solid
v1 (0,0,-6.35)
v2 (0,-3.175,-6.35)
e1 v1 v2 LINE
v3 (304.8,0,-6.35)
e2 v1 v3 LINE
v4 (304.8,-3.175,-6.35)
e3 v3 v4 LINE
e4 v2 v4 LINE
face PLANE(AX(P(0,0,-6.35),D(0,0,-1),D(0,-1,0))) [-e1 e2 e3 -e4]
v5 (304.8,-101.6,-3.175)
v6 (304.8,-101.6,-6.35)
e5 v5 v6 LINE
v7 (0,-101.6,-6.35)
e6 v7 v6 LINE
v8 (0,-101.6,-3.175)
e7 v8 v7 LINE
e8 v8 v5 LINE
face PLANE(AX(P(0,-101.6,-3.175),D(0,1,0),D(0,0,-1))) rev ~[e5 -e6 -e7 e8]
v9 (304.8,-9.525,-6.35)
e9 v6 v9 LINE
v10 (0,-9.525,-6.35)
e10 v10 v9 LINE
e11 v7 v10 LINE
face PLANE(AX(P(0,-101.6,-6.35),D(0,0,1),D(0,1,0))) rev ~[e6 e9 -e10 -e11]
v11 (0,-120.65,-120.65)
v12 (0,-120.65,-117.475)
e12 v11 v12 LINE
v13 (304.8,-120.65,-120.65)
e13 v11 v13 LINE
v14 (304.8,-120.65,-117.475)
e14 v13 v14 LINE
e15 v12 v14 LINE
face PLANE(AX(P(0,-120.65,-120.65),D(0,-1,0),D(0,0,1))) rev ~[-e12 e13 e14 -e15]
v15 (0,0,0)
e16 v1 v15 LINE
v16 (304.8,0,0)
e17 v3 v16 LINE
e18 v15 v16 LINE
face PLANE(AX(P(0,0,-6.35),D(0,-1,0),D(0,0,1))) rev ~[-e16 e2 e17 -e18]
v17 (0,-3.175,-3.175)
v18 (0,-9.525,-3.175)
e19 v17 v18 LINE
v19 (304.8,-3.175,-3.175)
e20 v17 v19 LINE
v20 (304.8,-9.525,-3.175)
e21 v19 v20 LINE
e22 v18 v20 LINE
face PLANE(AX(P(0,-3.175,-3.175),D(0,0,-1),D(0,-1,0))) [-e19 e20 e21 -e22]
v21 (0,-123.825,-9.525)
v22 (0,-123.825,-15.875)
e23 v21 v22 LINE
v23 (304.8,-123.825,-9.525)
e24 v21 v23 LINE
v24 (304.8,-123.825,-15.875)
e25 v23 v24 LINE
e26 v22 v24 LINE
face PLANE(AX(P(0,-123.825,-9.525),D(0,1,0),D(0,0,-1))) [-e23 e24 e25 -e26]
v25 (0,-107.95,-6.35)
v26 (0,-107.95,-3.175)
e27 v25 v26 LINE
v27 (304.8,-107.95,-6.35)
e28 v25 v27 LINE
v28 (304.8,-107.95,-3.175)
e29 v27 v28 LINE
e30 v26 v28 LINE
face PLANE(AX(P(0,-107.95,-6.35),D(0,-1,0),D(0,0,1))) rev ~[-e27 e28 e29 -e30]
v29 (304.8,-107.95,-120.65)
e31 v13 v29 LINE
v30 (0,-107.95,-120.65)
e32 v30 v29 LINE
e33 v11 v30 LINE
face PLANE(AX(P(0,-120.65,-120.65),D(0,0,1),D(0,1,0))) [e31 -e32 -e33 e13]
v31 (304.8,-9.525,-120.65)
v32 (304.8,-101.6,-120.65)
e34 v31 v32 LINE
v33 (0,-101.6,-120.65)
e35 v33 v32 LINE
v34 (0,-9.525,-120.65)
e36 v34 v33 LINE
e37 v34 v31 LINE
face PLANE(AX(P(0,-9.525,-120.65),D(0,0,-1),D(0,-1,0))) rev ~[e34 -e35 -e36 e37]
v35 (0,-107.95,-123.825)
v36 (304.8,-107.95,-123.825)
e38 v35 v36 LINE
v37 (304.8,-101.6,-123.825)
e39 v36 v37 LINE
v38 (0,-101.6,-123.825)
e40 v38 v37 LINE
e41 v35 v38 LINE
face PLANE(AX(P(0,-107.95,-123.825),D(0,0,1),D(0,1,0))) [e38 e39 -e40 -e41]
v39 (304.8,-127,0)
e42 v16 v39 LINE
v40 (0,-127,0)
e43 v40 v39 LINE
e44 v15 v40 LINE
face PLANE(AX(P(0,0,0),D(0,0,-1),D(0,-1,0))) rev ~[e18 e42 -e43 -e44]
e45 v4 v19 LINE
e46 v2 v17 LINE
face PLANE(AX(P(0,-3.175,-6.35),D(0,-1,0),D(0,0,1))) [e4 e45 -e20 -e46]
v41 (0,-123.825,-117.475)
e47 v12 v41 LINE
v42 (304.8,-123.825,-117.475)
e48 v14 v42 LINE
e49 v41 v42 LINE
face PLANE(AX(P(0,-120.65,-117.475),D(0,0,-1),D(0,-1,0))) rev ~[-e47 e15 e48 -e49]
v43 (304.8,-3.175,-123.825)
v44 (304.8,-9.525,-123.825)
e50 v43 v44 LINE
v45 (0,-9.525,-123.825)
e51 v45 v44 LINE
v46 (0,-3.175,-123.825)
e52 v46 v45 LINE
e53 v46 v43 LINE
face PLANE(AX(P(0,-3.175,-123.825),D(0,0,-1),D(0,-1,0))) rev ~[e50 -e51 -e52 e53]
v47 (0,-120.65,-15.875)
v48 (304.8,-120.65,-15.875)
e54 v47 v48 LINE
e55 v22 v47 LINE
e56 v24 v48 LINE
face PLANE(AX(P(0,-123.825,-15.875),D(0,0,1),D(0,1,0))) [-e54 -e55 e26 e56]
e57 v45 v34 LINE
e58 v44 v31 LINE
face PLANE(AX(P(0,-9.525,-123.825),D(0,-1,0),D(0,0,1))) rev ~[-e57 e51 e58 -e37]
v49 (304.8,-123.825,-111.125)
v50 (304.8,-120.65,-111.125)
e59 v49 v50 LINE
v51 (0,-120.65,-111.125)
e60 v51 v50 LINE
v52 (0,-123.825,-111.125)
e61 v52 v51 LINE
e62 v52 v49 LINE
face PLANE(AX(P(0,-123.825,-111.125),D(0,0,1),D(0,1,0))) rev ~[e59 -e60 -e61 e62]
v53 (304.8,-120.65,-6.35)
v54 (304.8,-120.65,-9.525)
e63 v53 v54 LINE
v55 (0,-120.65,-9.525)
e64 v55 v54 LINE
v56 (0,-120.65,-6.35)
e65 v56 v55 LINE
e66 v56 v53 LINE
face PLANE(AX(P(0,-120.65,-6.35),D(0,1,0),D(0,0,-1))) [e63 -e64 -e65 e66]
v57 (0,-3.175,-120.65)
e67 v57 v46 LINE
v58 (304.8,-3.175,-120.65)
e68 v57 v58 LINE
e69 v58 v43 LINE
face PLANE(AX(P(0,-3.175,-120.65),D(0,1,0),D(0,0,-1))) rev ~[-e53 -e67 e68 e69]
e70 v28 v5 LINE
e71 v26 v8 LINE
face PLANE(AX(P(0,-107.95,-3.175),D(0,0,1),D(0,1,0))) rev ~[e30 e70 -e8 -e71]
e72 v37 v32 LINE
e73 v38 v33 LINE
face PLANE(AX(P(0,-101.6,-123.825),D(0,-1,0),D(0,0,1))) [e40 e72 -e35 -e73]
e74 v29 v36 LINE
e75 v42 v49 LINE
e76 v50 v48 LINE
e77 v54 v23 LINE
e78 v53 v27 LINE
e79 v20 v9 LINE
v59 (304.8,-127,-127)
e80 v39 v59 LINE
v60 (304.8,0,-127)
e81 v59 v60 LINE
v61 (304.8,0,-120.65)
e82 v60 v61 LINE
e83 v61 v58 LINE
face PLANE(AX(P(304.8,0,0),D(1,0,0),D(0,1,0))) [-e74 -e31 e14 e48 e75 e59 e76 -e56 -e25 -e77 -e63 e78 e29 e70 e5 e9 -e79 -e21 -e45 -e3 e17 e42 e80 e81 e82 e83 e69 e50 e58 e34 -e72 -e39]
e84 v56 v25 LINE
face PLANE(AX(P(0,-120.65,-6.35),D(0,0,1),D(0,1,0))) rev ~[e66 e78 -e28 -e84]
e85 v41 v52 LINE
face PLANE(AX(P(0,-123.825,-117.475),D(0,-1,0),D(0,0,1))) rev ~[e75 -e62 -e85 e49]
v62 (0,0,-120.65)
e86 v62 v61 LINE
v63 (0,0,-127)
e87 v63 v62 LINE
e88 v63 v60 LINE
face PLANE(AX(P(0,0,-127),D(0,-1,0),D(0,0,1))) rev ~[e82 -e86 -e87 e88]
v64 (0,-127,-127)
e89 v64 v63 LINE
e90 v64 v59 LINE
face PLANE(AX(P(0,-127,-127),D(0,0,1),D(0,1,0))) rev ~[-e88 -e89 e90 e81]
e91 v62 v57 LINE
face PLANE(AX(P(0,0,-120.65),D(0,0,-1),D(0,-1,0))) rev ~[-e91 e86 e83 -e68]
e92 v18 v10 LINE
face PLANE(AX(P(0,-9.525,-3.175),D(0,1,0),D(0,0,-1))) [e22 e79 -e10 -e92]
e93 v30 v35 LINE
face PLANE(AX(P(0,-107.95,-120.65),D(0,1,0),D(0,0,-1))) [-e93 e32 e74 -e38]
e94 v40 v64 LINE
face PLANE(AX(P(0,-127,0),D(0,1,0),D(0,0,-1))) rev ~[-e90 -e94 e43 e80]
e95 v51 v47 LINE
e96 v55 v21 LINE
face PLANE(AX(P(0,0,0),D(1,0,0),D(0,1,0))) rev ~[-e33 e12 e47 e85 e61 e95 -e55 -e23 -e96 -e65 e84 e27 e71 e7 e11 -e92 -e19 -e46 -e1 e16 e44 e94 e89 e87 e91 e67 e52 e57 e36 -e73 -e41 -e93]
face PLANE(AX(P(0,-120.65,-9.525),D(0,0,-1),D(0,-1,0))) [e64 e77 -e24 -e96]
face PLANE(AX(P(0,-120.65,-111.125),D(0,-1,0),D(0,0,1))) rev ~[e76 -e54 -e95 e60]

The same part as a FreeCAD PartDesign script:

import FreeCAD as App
import Part
import Sketcher
from FreeCAD import Vector
Q = App.Units.Quantity

doc = App.newDocument("Part")
body = doc.addObject("PartDesign::Body", "Body")

# Sketch on YZ plane
sketch1 = body.newObject("Sketcher::SketchObject", "Sketch")
sketch1.AttachmentSupport = (doc.getObject("YZ_Plane"), [""])
sketch1.MapMode = "FlatFace"
sketch1.addGeometry([
    Part.LineSegment(Vector(0, -6.35, 0), Vector(0, 0, 0)),  # 0
    Part.LineSegment(Vector(0, 0, 0), Vector(-127, 0, 0)),  # 1
    Part.LineSegment(Vector(-127, 0, 0), Vector(-127, -127, 0)),  # 2
    Part.LineSegment(Vector(-127, -127, 0), Vector(0, -127, 0)),  # 3
    Part.LineSegment(Vector(0, -127, 0), Vector(0, -120.65, 0)),  # 4
    Part.LineSegment(Vector(0, -120.65, 0), Vector(-3.175, -120.65, 0)),  # 5
    Part.LineSegment(Vector(-3.175, -120.65, 0), Vector(-3.175, -123.825, 0)),  # 6
    Part.LineSegment(Vector(-3.175, -123.825, 0), Vector(-9.525, -123.825, 0)),  # 7
    Part.LineSegment(Vector(-9.525, -123.825, 0), Vector(-9.525, -120.65, 0)),  # 8
    Part.LineSegment(Vector(-9.525, -120.65, 0), Vector(-101.6, -120.65, 0)),  # 9
    Part.LineSegment(Vector(-101.6, -120.65, 0), Vector(-101.6, -123.825, 0)),  # 10
    Part.LineSegment(Vector(-101.6, -123.825, 0), Vector(-107.95, -123.825, 0)),  # 11
    Part.LineSegment(Vector(-107.95, -123.825, 0), Vector(-107.95, -120.65, 0)),  # 12
    Part.LineSegment(Vector(-107.95, -120.65, 0), Vector(-120.65, -120.65, 0)),  # 13
    Part.LineSegment(Vector(-120.65, -120.65, 0), Vector(-120.65, -117.475, 0)),  # 14
    Part.LineSegment(Vector(-120.65, -117.475, 0), Vector(-123.825, -117.475, 0)),  # 15
    Part.LineSegment(Vector(-123.825, -117.475, 0), Vector(-123.825, -111.125, 0)),  # 16
    Part.LineSegment(Vector(-123.825, -111.125, 0), Vector(-120.65, -111.125, 0)),  # 17
    Part.LineSegment(Vector(-120.65, -111.125, 0), Vector(-120.65, -15.875, 0)),  # 18
    Part.LineSegment(Vector(-120.65, -15.875, 0), Vector(-123.825, -15.875, 0)),  # 19
    Part.LineSegment(Vector(-123.825, -15.875, 0), Vector(-123.825, -9.525, 0)),  # 20
    Part.LineSegment(Vector(-123.825, -9.525, 0), Vector(-120.65, -9.525, 0)),  # 21
    Part.LineSegment(Vector(-120.65, -9.525, 0), Vector(-120.65, -6.35, 0)),  # 22
    Part.LineSegment(Vector(-120.65, -6.35, 0), Vector(-107.95, -6.35, 0)),  # 23
    Part.LineSegment(Vector(-107.95, -6.35, 0), Vector(-107.95, -3.175, 0)),  # 24
    Part.LineSegment(Vector(-107.95, -3.175, 0), Vector(-101.6, -3.175, 0)),  # 25
    Part.LineSegment(Vector(-101.6, -3.175, 0), Vector(-101.6, -6.35, 0)),  # 26
    Part.LineSegment(Vector(-101.6, -6.35, 0), Vector(-9.525, -6.35, 0)),  # 27
    Part.LineSegment(Vector(-9.525, -6.35, 0), Vector(-9.525, -3.175, 0)),  # 28
    Part.LineSegment(Vector(-9.525, -3.175, 0), Vector(-3.175, -3.175, 0)),  # 29
    Part.LineSegment(Vector(-3.175, -3.175, 0), Vector(-3.175, -6.35, 0)),  # 30
    Part.LineSegment(Vector(-3.175, -6.35, 0), Vector(0, -6.35, 0)),  # 31
], False)
sketch1.addConstraint([
    Sketcher.Constraint("Coincident", 0, 2, 1, 1),
    Sketcher.Constraint("Coincident", 1, 2, 2, 1),
    Sketcher.Constraint("Coincident", 2, 2, 3, 1),
    Sketcher.Constraint("Coincident", 3, 2, 4, 1),
    Sketcher.Constraint("Coincident", 4, 2, 5, 1),
    Sketcher.Constraint("Coincident", 5, 2, 6, 1),
    Sketcher.Constraint("Coincident", 6, 2, 7, 1),
    Sketcher.Constraint("Coincident", 7, 2, 8, 1),
    Sketcher.Constraint("Coincident", 8, 2, 9, 1),
    Sketcher.Constraint("Coincident", 9, 2, 10, 1),
    Sketcher.Constraint("Coincident", 10, 2, 11, 1),
    Sketcher.Constraint("Coincident", 11, 2, 12, 1),
    Sketcher.Constraint("Coincident", 12, 2, 13, 1),
    Sketcher.Constraint("Coincident", 13, 2, 14, 1),
    Sketcher.Constraint("Coincident", 14, 2, 15, 1),
    Sketcher.Constraint("Coincident", 15, 2, 16, 1),
    Sketcher.Constraint("Coincident", 16, 2, 17, 1),
    Sketcher.Constraint("Coincident", 17, 2, 18, 1),
    Sketcher.Constraint("Coincident", 18, 2, 19, 1),
    Sketcher.Constraint("Coincident", 19, 2, 20, 1),
    Sketcher.Constraint("Coincident", 20, 2, 21, 1),
    Sketcher.Constraint("Coincident", 21, 2, 22, 1),
    Sketcher.Constraint("Coincident", 22, 2, 23, 1),
    Sketcher.Constraint("Coincident", 23, 2, 24, 1),
    Sketcher.Constraint("Coincident", 24, 2, 25, 1),
    Sketcher.Constraint("Coincident", 25, 2, 26, 1),
    Sketcher.Constraint("Coincident", 26, 2, 27, 1),
    Sketcher.Constraint("Coincident", 27, 2, 28, 1),
    Sketcher.Constraint("Coincident", 28, 2, 29, 1),
    Sketcher.Constraint("Coincident", 29, 2, 30, 1),
    Sketcher.Constraint("Coincident", 30, 2, 31, 1),
    Sketcher.Constraint("Coincident", 31, 2, 0, 1),
    Sketcher.Constraint("Vertical", 0),
    Sketcher.Constraint("Horizontal", 1),
    Sketcher.Constraint("Vertical", 2),
    Sketcher.Constraint("Horizontal", 3),
    Sketcher.Constraint("Vertical", 4),
    Sketcher.Constraint("Horizontal", 5),
    Sketcher.Constraint("Vertical", 6),
    Sketcher.Constraint("Horizontal", 7),
    Sketcher.Constraint("Vertical", 8),
    Sketcher.Constraint("Horizontal", 9),
    Sketcher.Constraint("Vertical", 10),
    Sketcher.Constraint("Horizontal", 11),
    Sketcher.Constraint("Vertical", 12),
    Sketcher.Constraint("Horizontal", 13),
    Sketcher.Constraint("Vertical", 14),
    Sketcher.Constraint("Horizontal", 15),
    Sketcher.Constraint("Vertical", 16),
    Sketcher.Constraint("Horizontal", 17),
    Sketcher.Constraint("Vertical", 18),
    Sketcher.Constraint("Horizontal", 19),
    Sketcher.Constraint("Vertical", 20),
    Sketcher.Constraint("Horizontal", 21),
    Sketcher.Constraint("Vertical", 22),
    Sketcher.Constraint("Horizontal", 23),
    Sketcher.Constraint("Vertical", 24),
    Sketcher.Constraint("Horizontal", 25),
    Sketcher.Constraint("Vertical", 26),
    Sketcher.Constraint("Horizontal", 27),
    Sketcher.Constraint("Vertical", 28),
    Sketcher.Constraint("Horizontal", 29),
    Sketcher.Constraint("Vertical", 30),
    Sketcher.Constraint("Horizontal", 31),
    Sketcher.Constraint("Coincident", 0, 2, -1, 1),
    Sketcher.Constraint("PointOnObject", 3, 2, -2),
    Sketcher.Constraint("Horizontal", 5, 2, 8, 2),
    Sketcher.Constraint("Horizontal", 7, 2, 10, 2),
    Sketcher.Constraint("Horizontal", 9, 2, 12, 2),
    Sketcher.Constraint("Horizontal", 23, 2, 26, 2),
    Sketcher.Constraint("Horizontal", 25, 2, 28, 2),
    Sketcher.Constraint("Horizontal", 27, 2, 30, 2),
    Sketcher.Constraint("Vertical", 14, 2, 17, 2),
    Sketcher.Constraint("Vertical", 16, 2, 19, 2),
    Sketcher.Constraint("Vertical", 18, 2, 21, 2),
    Sketcher.Constraint("Vertical", 12, 2, 23, 2),
    Sketcher.Constraint("Vertical", 10, 2, 25, 2),
    Sketcher.Constraint("Vertical", 8, 2, 27, 2),
    Sketcher.Constraint("Vertical", 6, 2, 29, 2),
    Sketcher.Constraint("Equal", 7, 11),
    Sketcher.Constraint("Equal", 5, 15),
    Sketcher.Constraint("Equal", 29, 0),
    Sketcher.Constraint("Equal", 3, 2),
    Sketcher.Constraint("Equal", 0, 4),
    Sketcher.Constraint("Equal", 31, 6),
    Sketcher.Constraint("Equal", 12, 14),
    Sketcher.Constraint("Equal", 4, 16),
    Sketcher.Constraint("Equal", 16, 20),
    Sketcher.Constraint("Equal", 14, 22),
    Sketcher.Constraint("Equal", 22, 24),
    Sketcher.Constraint("DistanceX", 1, 2, 1, 1, Q("5 in")),
    Sketcher.Constraint("DistanceX", 13, 2, 13, 1, Q("0.5 in")),
    Sketcher.Constraint("DistanceX", 7, 2, 7, 1, Q("0.25 in")),
    Sketcher.Constraint("DistanceY", 18, 2, 24, 2, Q("0.5 in")),
    Sketcher.Constraint("DistanceX", 13, 2, -1, 1, Q("4.75 in")),
])
pad1 = body.newObject("PartDesign::Pad", "Pad")
pad1.Profile = sketch1
pad1.Length = Q("12 in")

doc.recompute()
